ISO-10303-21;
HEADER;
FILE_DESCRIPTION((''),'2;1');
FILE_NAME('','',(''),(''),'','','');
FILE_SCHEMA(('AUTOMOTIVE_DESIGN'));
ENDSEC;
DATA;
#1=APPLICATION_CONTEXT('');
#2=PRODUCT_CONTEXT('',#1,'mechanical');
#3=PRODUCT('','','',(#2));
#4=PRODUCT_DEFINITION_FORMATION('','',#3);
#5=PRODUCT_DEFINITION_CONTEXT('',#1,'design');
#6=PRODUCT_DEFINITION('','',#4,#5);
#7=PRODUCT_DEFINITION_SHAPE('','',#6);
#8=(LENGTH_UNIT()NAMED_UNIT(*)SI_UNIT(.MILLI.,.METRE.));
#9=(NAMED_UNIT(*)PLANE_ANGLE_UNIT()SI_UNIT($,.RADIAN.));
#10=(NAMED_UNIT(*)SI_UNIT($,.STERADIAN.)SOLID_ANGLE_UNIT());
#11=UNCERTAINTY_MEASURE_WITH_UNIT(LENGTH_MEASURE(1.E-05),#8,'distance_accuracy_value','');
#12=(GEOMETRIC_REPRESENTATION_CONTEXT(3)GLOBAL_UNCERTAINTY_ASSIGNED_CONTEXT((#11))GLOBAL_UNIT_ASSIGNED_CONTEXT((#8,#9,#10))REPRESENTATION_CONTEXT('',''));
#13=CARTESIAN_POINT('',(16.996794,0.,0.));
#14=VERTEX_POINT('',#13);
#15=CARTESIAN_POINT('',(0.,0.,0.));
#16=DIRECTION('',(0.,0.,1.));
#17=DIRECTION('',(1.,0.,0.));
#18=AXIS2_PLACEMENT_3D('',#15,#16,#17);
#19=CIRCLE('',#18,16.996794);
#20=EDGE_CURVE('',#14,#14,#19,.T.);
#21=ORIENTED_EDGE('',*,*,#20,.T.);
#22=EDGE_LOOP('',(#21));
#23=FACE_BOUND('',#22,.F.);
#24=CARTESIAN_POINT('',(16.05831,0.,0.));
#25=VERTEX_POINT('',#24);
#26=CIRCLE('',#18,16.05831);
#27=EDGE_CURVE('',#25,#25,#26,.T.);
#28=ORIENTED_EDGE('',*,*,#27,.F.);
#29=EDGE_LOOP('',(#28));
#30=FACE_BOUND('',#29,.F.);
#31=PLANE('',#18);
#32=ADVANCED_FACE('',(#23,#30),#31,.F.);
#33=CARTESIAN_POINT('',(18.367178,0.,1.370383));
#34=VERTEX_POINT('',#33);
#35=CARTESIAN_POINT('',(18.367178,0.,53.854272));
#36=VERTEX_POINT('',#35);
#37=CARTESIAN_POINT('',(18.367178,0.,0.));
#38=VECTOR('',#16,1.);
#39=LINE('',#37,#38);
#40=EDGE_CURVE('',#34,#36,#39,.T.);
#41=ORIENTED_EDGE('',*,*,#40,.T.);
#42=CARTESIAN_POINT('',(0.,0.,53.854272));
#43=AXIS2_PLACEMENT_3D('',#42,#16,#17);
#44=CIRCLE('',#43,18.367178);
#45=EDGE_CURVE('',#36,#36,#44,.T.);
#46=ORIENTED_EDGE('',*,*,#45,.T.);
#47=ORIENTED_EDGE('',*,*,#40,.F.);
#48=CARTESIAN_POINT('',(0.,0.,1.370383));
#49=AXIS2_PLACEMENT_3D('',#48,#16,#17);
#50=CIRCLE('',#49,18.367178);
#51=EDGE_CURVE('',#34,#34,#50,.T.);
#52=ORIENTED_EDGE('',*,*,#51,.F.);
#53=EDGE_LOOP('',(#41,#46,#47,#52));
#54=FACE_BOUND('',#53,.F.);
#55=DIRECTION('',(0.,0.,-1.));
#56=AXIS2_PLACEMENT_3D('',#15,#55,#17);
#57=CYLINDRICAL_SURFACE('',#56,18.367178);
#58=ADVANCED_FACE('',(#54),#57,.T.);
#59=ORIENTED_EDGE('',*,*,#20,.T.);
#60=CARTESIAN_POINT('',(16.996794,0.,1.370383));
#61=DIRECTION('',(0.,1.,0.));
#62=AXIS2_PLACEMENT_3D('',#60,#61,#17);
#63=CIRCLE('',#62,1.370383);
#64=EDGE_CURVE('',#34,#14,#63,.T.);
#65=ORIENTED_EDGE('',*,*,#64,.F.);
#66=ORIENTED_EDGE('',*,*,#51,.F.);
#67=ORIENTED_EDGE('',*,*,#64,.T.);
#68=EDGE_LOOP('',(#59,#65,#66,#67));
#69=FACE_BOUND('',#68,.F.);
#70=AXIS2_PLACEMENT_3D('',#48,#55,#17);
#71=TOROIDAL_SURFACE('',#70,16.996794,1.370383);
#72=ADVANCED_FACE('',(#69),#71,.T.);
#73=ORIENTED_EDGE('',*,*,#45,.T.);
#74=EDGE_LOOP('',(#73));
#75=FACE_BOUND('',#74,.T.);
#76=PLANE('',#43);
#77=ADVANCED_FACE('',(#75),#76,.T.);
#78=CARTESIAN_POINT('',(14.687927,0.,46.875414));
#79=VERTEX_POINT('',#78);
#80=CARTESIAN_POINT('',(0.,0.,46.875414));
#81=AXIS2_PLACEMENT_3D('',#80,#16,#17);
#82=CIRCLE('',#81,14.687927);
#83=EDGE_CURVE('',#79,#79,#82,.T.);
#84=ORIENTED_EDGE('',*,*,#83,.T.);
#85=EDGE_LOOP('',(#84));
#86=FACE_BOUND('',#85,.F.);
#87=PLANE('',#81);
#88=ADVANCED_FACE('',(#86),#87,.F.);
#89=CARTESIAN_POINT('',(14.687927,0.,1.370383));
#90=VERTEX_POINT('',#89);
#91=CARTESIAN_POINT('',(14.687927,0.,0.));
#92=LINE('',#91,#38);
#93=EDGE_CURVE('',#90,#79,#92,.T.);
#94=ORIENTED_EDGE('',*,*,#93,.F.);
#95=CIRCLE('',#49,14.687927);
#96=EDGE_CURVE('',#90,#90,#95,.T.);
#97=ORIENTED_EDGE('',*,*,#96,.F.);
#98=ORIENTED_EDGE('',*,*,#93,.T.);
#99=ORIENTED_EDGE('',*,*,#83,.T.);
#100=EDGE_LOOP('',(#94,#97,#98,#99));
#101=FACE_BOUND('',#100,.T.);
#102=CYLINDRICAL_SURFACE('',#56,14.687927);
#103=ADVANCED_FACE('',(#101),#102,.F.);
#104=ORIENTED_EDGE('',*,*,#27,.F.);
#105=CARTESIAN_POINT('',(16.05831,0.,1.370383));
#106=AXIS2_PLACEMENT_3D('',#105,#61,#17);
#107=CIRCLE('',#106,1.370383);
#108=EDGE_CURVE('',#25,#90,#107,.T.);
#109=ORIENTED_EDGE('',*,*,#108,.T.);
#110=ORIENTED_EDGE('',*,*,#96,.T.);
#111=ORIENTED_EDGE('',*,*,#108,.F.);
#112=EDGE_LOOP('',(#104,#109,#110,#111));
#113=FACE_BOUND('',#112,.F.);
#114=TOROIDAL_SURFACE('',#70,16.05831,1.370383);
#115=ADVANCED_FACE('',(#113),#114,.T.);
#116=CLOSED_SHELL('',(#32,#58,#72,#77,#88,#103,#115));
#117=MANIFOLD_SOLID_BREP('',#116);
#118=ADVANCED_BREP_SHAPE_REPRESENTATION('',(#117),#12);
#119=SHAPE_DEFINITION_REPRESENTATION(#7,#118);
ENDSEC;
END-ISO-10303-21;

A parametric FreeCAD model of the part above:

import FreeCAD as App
import Part
import Sketcher
Q = App.Units.Quantity


def edges_at(feature, points):
    """Names of the edges that pass closest to the given points."""
    edges = feature.Shape.Edges
    near = lambda p: min(range(len(edges)), key=lambda i: edges[i].distToShape(Part.Vertex(*p))[0])
    return sorted({f"Edge{near(p) + 1}" for p in points})

doc = App.newDocument("Part")
body = doc.addObject("PartDesign::Body", "Body")

sketch1 = doc.addObject("Sketcher::SketchObject", "Sketch")
body.addObject(sketch1)
sketch1.AttachmentSupport = (doc.XY_Plane, [""])
sketch1.MapMode = "FlatFace"
sketch1.addGeometry(Part.Circle(App.Vector(0, 0, 0), App.Vector(0, 0, 1), 18), False)
sketch1.addConstraint([
    Sketcher.Constraint("Coincident", 0, 3, -1, 1),
    Sketcher.Constraint("Diameter", 0, Q("36.734355 mm")),
])
pad1 = doc.addObject("PartDesign::Pad", "Pad")
body.addObject(pad1)
pad1.Profile = sketch1
pad1.Length = 53.854272

sketch2 = doc.addObject("Sketcher::SketchObject", "Sketch001")
body.addObject(sketch2)
sketch2.AttachmentSupport = (doc.XY_Plane, [""])
sketch2.MapMode = "FlatFace"
sketch2.addGeometry(Part.Circle(App.Vector(0, 0, 0), App.Vector(0, 0, 1), 15), False)
sketch2.addConstraint([
    Sketcher.Constraint("Coincident", 0, 3, -1, 1),
    Sketcher.Constraint("Diameter", 0, Q("29.375854 mm")),
])
pocket1 = doc.addObject("PartDesign::Pocket", "Pocket")
body.addObject(pocket1)
pocket1.Profile = sketch2
pocket1.Length = 46.875414
pocket1.Reversed = True
doc.recompute()

fillet = doc.addObject("PartDesign::Fillet", "Fillet")
body.addObject(fillet)
fillet.Base = (pocket1, edges_at(pocket1, [(-14.688, 0, 0), (-18.367, 0, 0)]))
fillet.Radius = 1.370383

doc.recompute()
